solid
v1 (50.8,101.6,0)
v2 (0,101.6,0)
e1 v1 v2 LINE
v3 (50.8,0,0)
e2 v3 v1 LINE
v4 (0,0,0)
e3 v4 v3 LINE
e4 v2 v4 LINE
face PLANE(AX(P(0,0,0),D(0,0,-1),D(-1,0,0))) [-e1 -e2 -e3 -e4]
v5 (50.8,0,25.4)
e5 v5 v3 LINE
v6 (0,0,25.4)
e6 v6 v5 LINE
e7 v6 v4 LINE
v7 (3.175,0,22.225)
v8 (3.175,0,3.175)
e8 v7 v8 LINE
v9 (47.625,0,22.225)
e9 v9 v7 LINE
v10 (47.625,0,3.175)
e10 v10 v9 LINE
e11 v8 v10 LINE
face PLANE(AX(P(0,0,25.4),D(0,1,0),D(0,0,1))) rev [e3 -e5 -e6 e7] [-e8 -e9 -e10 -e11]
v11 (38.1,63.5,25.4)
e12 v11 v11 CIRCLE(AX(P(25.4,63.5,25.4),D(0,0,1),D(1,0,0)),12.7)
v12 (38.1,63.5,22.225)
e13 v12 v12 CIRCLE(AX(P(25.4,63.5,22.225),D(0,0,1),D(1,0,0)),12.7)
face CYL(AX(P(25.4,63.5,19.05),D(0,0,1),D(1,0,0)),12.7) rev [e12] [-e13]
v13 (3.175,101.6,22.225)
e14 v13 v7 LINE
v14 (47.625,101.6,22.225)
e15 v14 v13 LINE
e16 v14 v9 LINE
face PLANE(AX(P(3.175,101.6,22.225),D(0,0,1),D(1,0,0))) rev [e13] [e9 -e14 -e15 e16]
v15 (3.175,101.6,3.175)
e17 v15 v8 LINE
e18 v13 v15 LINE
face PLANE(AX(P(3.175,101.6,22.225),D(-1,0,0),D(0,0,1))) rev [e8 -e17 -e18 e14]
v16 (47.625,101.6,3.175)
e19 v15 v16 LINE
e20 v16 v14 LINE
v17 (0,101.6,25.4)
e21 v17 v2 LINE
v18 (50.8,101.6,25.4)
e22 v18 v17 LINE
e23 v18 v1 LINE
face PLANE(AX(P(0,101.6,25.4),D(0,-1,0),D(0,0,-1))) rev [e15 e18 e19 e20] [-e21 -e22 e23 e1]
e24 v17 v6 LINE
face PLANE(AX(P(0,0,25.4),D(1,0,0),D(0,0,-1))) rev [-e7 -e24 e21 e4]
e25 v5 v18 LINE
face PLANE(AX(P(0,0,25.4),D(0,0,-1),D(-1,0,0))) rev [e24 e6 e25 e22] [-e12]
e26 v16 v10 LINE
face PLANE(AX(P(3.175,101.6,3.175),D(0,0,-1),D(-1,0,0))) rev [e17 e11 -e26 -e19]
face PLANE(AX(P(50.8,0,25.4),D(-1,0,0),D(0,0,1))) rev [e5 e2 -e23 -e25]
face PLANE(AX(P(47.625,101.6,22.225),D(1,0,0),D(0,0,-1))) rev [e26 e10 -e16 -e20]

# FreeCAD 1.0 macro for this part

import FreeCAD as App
import Part
import Sketcher
from FreeCAD import Vector
Q = App.Units.Quantity


def add_polygon(sketch, points):
    """Adds a closed chain of lines whose ends are joined by coincident constraints."""
    first, n = sketch.GeometryCount, len(points)
    for a, b in zip(points, points[1:] + points[:1]):
        sketch.addGeometry(Part.LineSegment(App.Vector(*a, 0), App.Vector(*b, 0)), False)
    for i in range(n):
        sketch.addConstraint(Sketcher.Constraint("Coincident", first + i, 2, first + (i + 1) % n, 1))

doc = App.newDocument("Part")
body = doc.addObject("PartDesign::Body", "Body")

sketch1 = body.newObject("Sketcher::SketchObject", "Sketch")
sketch1.AttachmentSupport = (doc.getObject("XY_Plane"), [""])
sketch1.MapMode = "FlatFace"
add_polygon(sketch1, [(0, 102), (0, 0), (51, 0), (51, 102)])
sketch1.addConstraint(Sketcher.Constraint("Vertical", 0))
sketch1.addConstraint(Sketcher.Constraint("Horizontal", 1))
sketch1.addConstraint(Sketcher.Constraint("Vertical", 2))
sketch1.addConstraint(Sketcher.Constraint("Horizontal", 3))
sketch1.addConstraint(Sketcher.Constraint("Coincident", 0, 2, -1, 1))
sketch1.addConstraint(Sketcher.Constraint("DistanceX", 1, 1, 1, 2, Q("2 in")))
sketch1.addConstraint(Sketcher.Constraint("DistanceY", 0, 2, 0, 1, Q("4 in")))
pad1 = body.newObject("PartDesign::Pad", "Pad")
pad1.Profile = sketch1
pad1.Length = Q("1 in")

sketch2 = body.newObject("Sketcher::SketchObject", "Sketch001")
sketch2.AttachmentSupport = (doc.getObject("XZ_Plane"), [""])
sketch2.MapMode = "FlatFace"
add_polygon(sketch2, [(3, 22), (3, 3), (48, 3), (48, 22)])
sketch2.addConstraint(Sketcher.Constraint("Vertical", 0))
sketch2.addConstraint(Sketcher.Constraint("Horizontal", 1))
sketch2.addConstraint(Sketcher.Constraint("Vertical", 2))
sketch2.addConstraint(Sketcher.Constraint("Horizontal", 3))
sketch2.addConstraint(Sketcher.Constraint("DistanceX", 1, 1, 1, 2, Q("1.75 in")))
sketch2.addConstraint(Sketcher.Constraint("DistanceY", 0, 2, 0, 1, Q("0.75 in")))
sketch2.addConstraint(Sketcher.Constraint("DistanceX", -1, 1, 0, 2, Q("0.125 in")))
sketch2.addConstraint(Sketcher.Constraint("DistanceY", -1, 1, 0, 2, Q("0.125 in")))
pocket1 = body.newObject("PartDesign::Pocket", "Pocket")
pocket1.Profile = sketch2
pocket1.Type = "ThroughAll"

sketch3 = body.newObject("Sketcher::SketchObject", "Sketch002")
sketch3.AttachmentSupport = (doc.getObject("XY_Plane"), [""])
sketch3.MapMode = "FlatFace"
sketch3.AttachmentOffset = App.Placement(Vector(0, 0, 1 * 25.4), App.Rotation())
sketch3.addGeometry(Part.Circle(Vector(25, 64, 0), Vector(0, 0, 1), 13), False)
sketch3.addConstraint(Sketcher.Constraint("Diameter", 0, Q("1 in")))
sketch3.addConstraint(Sketcher.Constraint("DistanceX", -1, 1, 0, 3, Q("1 in")))
sketch3.addConstraint(Sketcher.Constraint("DistanceY", -1, 1, 0, 3, Q("2.5 in")))
pocket2 = body.newObject("PartDesign::Pocket", "Pocket001")
pocket2.Profile = sketch3
pocket2.Length = Q("0.25 in")

doc.recompute()
